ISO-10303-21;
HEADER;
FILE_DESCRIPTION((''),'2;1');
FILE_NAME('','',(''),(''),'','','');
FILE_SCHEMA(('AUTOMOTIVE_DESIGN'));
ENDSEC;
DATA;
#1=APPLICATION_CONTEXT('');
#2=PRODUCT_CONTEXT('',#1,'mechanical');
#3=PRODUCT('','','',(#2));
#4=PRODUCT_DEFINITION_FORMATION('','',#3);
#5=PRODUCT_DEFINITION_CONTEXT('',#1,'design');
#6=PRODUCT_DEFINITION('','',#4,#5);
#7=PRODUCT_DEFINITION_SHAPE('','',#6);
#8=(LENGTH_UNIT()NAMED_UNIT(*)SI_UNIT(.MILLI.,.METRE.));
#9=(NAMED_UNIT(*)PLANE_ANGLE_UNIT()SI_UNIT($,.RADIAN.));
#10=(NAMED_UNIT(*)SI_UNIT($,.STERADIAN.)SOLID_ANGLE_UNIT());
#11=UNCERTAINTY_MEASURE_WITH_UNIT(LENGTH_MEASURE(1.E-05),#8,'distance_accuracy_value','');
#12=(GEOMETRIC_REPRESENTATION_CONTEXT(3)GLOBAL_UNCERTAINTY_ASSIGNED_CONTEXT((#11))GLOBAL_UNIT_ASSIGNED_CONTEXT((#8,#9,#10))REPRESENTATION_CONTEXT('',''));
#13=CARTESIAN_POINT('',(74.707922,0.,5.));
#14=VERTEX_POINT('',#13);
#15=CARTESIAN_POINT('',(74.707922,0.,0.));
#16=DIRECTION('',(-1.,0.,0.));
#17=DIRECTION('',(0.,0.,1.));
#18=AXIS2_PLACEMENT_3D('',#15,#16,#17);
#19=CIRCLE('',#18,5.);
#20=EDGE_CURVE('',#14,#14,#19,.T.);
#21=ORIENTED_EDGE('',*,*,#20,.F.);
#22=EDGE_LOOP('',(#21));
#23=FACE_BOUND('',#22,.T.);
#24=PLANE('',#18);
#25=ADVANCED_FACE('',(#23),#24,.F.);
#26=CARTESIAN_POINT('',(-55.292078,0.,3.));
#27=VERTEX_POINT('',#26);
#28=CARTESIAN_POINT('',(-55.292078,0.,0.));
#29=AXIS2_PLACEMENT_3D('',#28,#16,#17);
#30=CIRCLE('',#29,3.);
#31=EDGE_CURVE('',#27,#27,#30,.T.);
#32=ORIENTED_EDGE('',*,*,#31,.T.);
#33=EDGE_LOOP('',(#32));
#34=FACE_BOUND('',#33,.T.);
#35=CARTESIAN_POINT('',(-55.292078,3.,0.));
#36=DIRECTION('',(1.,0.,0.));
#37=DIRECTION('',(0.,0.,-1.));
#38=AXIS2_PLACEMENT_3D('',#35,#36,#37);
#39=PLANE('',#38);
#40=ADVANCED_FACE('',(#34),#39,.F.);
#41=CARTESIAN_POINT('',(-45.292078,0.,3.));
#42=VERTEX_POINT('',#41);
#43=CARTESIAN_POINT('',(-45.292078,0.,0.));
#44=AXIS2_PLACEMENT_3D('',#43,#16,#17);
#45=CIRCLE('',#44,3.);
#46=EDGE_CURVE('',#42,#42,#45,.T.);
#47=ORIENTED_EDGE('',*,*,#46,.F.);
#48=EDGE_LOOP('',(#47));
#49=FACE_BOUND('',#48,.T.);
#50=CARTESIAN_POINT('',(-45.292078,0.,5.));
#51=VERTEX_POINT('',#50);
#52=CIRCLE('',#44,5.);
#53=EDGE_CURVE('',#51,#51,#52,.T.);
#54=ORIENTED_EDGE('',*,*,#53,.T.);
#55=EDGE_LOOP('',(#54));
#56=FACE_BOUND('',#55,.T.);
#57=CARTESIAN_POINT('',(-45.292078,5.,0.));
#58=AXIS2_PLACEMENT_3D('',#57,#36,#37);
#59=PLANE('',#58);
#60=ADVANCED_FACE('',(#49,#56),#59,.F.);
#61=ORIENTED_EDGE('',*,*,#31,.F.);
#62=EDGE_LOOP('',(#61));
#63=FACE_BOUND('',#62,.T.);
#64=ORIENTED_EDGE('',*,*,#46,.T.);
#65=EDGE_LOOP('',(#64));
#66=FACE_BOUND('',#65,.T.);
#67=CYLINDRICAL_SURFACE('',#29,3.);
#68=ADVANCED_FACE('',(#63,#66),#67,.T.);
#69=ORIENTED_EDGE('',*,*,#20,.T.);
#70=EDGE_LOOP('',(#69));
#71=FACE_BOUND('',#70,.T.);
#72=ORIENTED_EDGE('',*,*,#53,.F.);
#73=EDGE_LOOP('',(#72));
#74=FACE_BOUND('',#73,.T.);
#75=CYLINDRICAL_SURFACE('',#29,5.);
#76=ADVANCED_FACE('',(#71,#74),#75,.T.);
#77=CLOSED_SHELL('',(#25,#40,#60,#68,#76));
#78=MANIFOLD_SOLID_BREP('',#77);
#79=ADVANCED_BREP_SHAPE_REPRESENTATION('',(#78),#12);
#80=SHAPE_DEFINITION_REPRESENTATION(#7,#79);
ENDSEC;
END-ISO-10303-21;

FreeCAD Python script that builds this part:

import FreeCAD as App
import Part
import Sketcher
from FreeCAD import Vector


def add_polygon(sketch, points):
    """Adds a closed chain of lines whose ends are joined by coincident constraints."""
    first, n = sketch.GeometryCount, len(points)
    for a, b in zip(points, points[1:] + points[:1]):
        sketch.addGeometry(Part.LineSegment(App.Vector(*a, 0), App.Vector(*b, 0)), False)
    for i in range(n):
        sketch.addConstraint(Sketcher.Constraint("Coincident", first + i, 2, first + (i + 1) % n, 1))

doc = App.newDocument("Part")
params = doc.addObject("Spreadsheet::Sheet", "Params")
for row, (alias, value) in enumerate([
    ("sketch1_width", "130 mm"),
    ("sketch1_width2", "120 mm"),
    ("sketch1_height", "5 mm"),
    ("sketch1_height2", "2 mm"),
    ("revolution_angle", "360 deg"),
], start=1):
    params.set(f"A{row}", alias)
    params.set(f"B{row}", "=" + value)
    params.setAlias(f"B{row}", alias)

body = doc.addObject("PartDesign::Body", "Body")

# Sketch on XY plane
sketch1 = doc.addObject("Sketcher::SketchObject", "Sketch")
body.addObject(sketch1)
sketch1.AttachmentSupport = (doc.XY_Plane, [""])
sketch1.MapMode = "FlatFace"
add_polygon(sketch1, [(-55.292078, 0), (74.707922, 0), (74.707922, 5), (-45.292078, 5), (-45.292078, 3), (-55.292078, 3)])  # lines 0-5
sketch1.addConstraint([
    Sketcher.Constraint("Horizontal", 0),
    Sketcher.Constraint("Vertical", 1),
    Sketcher.Constraint("Horizontal", 2),
    Sketcher.Constraint("Vertical", 3),
    Sketcher.Constraint("Horizontal", 4),
    Sketcher.Constraint("Vertical", 5),
    Sketcher.Constraint("PointOnObject", 0, 2, -1),
    Sketcher.Constraint("DistanceX", 0, 1, 0, 2, 130.0),
    Sketcher.Constraint("DistanceX", 2, 2, 2, 1, 120.0),
    Sketcher.Constraint("DistanceY", 1, 1, 1, 2, 5.0),
    Sketcher.Constraint("DistanceY", 3, 2, 3, 1, 2.0),
    Sketcher.Constraint("DistanceX", -1, 1, 0, 2, 74.707922),
])
sketch1.setExpression("Constraints[13]", "Params.sketch1_width")
sketch1.setExpression("Constraints[14]", "Params.sketch1_width2")
sketch1.setExpression("Constraints[15]", "Params.sketch1_height")
sketch1.setExpression("Constraints[16]", "Params.sketch1_height2")
revolution = doc.addObject("PartDesign::Revolution", "Revolution")
body.addObject(revolution)
revolution.Profile = sketch1
revolution.ReferenceAxis = (sketch1, ["H_Axis"])
revolution.setExpression("Angle", "Params.revolution_angle")

doc.recompute()
